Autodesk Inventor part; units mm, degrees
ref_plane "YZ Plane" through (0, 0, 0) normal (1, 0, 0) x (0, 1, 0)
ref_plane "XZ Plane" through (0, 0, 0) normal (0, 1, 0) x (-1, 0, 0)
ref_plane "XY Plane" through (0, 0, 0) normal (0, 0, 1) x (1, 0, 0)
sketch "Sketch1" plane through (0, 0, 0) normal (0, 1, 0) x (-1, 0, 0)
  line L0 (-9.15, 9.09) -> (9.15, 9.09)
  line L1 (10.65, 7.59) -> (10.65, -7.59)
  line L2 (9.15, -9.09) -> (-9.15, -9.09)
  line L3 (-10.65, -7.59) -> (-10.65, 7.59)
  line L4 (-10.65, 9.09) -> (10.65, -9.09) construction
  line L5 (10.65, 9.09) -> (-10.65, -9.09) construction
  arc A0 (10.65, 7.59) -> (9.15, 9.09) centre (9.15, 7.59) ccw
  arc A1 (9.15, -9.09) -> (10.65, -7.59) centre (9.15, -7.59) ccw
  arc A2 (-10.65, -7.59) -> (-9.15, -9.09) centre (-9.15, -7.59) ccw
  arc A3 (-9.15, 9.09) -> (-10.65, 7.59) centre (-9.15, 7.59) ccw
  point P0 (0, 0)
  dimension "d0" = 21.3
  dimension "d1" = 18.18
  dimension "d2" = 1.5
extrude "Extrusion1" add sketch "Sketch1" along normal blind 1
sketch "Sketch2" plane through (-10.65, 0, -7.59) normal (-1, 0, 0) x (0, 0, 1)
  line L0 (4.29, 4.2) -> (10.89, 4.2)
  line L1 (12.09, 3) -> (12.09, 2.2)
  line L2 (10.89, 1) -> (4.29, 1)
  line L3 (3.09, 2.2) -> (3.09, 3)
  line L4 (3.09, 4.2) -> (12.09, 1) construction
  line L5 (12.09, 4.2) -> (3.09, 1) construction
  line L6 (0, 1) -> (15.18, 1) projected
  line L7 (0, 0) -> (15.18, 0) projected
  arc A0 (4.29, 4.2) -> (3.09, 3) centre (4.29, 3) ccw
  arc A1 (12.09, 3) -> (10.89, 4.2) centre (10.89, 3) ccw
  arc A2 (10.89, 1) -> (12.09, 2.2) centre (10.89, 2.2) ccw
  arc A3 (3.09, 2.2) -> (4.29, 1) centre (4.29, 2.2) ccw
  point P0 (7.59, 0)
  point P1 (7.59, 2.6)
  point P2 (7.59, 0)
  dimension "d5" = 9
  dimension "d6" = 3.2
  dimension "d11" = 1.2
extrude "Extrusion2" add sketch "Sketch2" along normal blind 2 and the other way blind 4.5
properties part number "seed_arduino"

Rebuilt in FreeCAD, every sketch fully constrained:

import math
import FreeCAD as App
import Part
import Sketcher

V = App.Vector
Q = App.Units.Quantity

doc = App.newDocument("Part")
body = doc.addObject("PartDesign::Body", "Body")

# Sketch on XZ plane
sketch1 = body.newObject("Sketcher::SketchObject", "Sketch")
sketch1.AttachmentSupport = (doc.getObject("XZ_Plane"), [""])
sketch1.MapMode = "FlatFace"
sketch1.addGeometry(Part.LineSegment(V(-9.15, 9.09, 0), V(9.15, 9.09, 0)), False)
sketch1.addGeometry(Part.ArcOfCircle(Part.Circle(V(9.15, 7.59, 0), V(0, 0, 1), 1.5), math.radians(0), math.radians(90)), False)
sketch1.addGeometry(Part.LineSegment(V(10.65, 7.59, 0), V(10.65, -7.59, 0)), False)
sketch1.addGeometry(Part.ArcOfCircle(Part.Circle(V(9.15, -7.59, 0), V(0, 0, 1), 1.5), math.radians(-90), math.radians(0)), False)
sketch1.addGeometry(Part.LineSegment(V(9.15, -9.09, 0), V(-9.15, -9.09, 0)), False)
sketch1.addGeometry(Part.ArcOfCircle(Part.Circle(V(-9.15, -7.59, 0), V(0, 0, 1), 1.5), math.radians(180), math.radians(270)), False)
sketch1.addGeometry(Part.LineSegment(V(-10.65, -7.59, 0), V(-10.65, 7.59, 0)), False)
sketch1.addGeometry(Part.ArcOfCircle(Part.Circle(V(-9.15, 7.59, 0), V(0, 0, 1), 1.5), math.radians(90), math.radians(180)), False)
sketch1.addConstraint(Sketcher.Constraint("Tangent", 0, 2, 1, 2))
sketch1.addConstraint(Sketcher.Constraint("Tangent", 1, 1, 2, 1))
sketch1.addConstraint(Sketcher.Constraint("Tangent", 2, 2, 3, 2))
sketch1.addConstraint(Sketcher.Constraint("Tangent", 3, 1, 4, 1))
sketch1.addConstraint(Sketcher.Constraint("Tangent", 4, 2, 5, 2))
sketch1.addConstraint(Sketcher.Constraint("Tangent", 5, 1, 6, 1))
sketch1.addConstraint(Sketcher.Constraint("Tangent", 6, 2, 7, 2))
sketch1.addConstraint(Sketcher.Constraint("Tangent", 7, 1, 0, 1))
sketch1.addConstraint(Sketcher.Constraint("Horizontal", 0))
sketch1.addConstraint(Sketcher.Constraint("Vertical", 2))
sketch1.addConstraint(Sketcher.Constraint("Horizontal", 4))
sketch1.addConstraint(Sketcher.Constraint("Vertical", 6))
sketch1.addConstraint(Sketcher.Constraint("Equal", 1, 3))
sketch1.addConstraint(Sketcher.Constraint("Equal", 3, 5))
sketch1.addConstraint(Sketcher.Constraint("Equal", 5, 7))
sketch1.addConstraint(Sketcher.Constraint("Symmetric", 1, 3, 5, 3, -1, 1))
sketch1.addConstraint(Sketcher.Constraint("Radius", 1, Q("1.5 mm")))
sketch1.addConstraint(Sketcher.Constraint("DistanceY", 3, 1, 0, 2, Q("18.18 mm")))
sketch1.addConstraint(Sketcher.Constraint("DistanceX", 0, 1, 0, 2, Q("18.3 mm")))
pad1 = body.newObject("PartDesign::Pad", "Pad")
pad1.Profile = sketch1
pad1.Length = 1
pad1.Reversed = True

# Sketch on YZ plane
sketch2 = body.newObject("Sketcher::SketchObject", "Sketch001")
sketch2.AttachmentSupport = (doc.getObject("YZ_Plane"), [""])
sketch2.MapMode = "FlatFace"
sketch2.AttachmentOffset = App.Placement(V(0, 0, -10.65), App.Rotation())
sketch2.addGeometry(Part.LineSegment(V(4.2, 3.3, 0), V(4.2, -3.3, 0)), False)
sketch2.addGeometry(Part.ArcOfCircle(Part.Circle(V(3, -3.3, 0), V(0, 0, 1), 1.2), math.radians(-90), math.radians(0)), False)
sketch2.addGeometry(Part.LineSegment(V(3, -4.5, 0), V(2.2, -4.5, 0)), False)
sketch2.addGeometry(Part.ArcOfCircle(Part.Circle(V(2.2, -3.3, 0), V(0, 0, 1), 1.2), math.radians(180), math.radians(270)), False)
sketch2.addGeometry(Part.LineSegment(V(1, -3.3, 0), V(1, 3.3, 0)), False)
sketch2.addGeometry(Part.ArcOfCircle(Part.Circle(V(2.2, 3.3, 0), V(0, 0, 1), 1.2), math.radians(90), math.radians(180)), False)
sketch2.addGeometry(Part.LineSegment(V(2.2, 4.5, 0), V(3, 4.5, 0)), False)
sketch2.addGeometry(Part.ArcOfCircle(Part.Circle(V(3, 3.3, 0), V(0, 0, 1), 1.2), math.radians(0), math.radians(90)), False)
sketch2.addConstraint(Sketcher.Constraint("Tangent", 0, 2, 1, 2))
sketch2.addConstraint(Sketcher.Constraint("Tangent", 1, 1, 2, 1))
sketch2.addConstraint(Sketcher.Constraint("Tangent", 2, 2, 3, 2))
sketch2.addConstraint(Sketcher.Constraint("Tangent", 3, 1, 4, 1))
sketch2.addConstraint(Sketcher.Constraint("Tangent", 4, 2, 5, 2))
sketch2.addConstraint(Sketcher.Constraint("Tangent", 5, 1, 6, 1))
sketch2.addConstraint(Sketcher.Constraint("Tangent", 6, 2, 7, 2))
sketch2.addConstraint(Sketcher.Constraint("Tangent", 7, 1, 0, 1))
sketch2.addConstraint(Sketcher.Constraint("Vertical", 0))
sketch2.addConstraint(Sketcher.Constraint("Horizontal", 2))
sketch2.addConstraint(Sketcher.Constraint("Vertical", 4))
sketch2.addConstraint(Sketcher.Constraint("Horizontal", 6))
sketch2.addConstraint(Sketcher.Constraint("Equal", 1, 3))
sketch2.addConstraint(Sketcher.Constraint("Equal", 3, 5))
sketch2.addConstraint(Sketcher.Constraint("Equal", 5, 7))
sketch2.addConstraint(Sketcher.Constraint("Radius", 1, Q("1.2 mm")))
sketch2.addConstraint(Sketcher.Constraint("DistanceX", 3, 1, 0, 2, Q("3.2 mm")))
sketch2.addConstraint(Sketcher.Constraint("DistanceY", 0, 2, 0, 1, Q("6.6 mm")))
sketch2.addConstraint(Sketcher.Constraint("DistanceX", -1, 1, 1, 3, Q("3 mm")))
sketch2.addConstraint(Sketcher.Constraint("DistanceY", 1, 3, -1, 1, Q("3.3 mm")))
pad2 = body.newObject("PartDesign::Pad", "Pad001")
pad2.Profile = sketch2
pad2.Type = "TwoLengths"
pad2.Length = 2
pad2.Length2 = 4.5
pad2.Reversed = True

doc.recompute()
